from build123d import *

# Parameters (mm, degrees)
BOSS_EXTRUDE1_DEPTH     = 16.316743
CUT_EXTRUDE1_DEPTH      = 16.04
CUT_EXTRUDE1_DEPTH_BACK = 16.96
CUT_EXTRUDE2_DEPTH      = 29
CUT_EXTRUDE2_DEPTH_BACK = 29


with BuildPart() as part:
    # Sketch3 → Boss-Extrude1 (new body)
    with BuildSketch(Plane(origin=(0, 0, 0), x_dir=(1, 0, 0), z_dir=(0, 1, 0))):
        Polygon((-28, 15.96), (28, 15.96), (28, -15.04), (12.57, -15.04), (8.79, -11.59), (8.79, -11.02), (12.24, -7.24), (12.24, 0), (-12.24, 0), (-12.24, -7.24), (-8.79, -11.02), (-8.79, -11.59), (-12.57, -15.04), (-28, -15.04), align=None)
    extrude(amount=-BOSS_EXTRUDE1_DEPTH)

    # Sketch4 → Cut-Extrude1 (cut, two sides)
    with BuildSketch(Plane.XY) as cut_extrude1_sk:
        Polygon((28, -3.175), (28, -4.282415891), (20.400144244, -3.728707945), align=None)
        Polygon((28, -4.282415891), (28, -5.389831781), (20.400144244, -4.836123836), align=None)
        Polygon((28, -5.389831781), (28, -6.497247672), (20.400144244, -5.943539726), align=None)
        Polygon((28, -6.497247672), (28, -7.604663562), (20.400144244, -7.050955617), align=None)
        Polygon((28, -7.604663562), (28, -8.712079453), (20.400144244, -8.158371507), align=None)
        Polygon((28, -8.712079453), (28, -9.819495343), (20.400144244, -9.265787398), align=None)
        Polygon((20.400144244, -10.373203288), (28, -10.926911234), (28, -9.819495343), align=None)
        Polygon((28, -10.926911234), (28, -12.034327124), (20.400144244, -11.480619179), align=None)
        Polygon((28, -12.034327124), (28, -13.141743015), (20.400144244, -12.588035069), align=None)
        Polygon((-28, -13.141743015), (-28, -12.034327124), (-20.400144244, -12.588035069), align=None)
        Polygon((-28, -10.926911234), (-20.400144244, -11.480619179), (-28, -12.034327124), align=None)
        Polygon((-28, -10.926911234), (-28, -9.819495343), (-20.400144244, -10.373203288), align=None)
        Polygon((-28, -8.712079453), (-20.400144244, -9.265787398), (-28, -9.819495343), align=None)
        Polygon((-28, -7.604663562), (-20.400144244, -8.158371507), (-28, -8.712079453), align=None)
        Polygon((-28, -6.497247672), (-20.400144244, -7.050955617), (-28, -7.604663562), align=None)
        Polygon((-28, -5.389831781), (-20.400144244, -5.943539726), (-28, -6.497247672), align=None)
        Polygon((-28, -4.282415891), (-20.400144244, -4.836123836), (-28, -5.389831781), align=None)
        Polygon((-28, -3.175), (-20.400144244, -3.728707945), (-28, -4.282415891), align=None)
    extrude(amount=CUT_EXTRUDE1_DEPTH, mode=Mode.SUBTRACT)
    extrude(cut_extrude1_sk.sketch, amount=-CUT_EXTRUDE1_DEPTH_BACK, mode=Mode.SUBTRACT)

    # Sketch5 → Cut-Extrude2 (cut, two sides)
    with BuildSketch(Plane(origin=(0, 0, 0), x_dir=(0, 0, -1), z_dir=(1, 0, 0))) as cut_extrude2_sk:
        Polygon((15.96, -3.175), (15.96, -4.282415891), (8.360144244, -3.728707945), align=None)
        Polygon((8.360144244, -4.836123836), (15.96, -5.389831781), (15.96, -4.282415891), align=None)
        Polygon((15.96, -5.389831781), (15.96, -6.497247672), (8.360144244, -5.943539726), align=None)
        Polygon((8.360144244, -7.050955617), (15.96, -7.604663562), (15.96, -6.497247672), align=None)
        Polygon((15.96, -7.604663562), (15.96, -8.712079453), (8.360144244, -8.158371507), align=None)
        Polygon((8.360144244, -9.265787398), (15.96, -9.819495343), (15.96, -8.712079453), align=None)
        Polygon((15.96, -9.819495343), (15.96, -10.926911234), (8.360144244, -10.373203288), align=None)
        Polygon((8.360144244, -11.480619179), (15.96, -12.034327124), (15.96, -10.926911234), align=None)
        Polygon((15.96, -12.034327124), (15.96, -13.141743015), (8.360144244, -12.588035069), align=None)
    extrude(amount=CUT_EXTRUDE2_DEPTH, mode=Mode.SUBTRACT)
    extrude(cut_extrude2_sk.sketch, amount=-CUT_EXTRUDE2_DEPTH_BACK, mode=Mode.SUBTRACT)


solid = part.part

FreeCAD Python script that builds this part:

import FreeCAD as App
import Part
import Sketcher


def add_polygon(sketch, points):
    """Adds a closed chain of lines whose ends are joined by coincident constraints."""
    first, n = sketch.GeometryCount, len(points)
    for a, b in zip(points, points[1:] + points[:1]):
        sketch.addGeometry(Part.LineSegment(App.Vector(*a, 0), App.Vector(*b, 0)), False)
    for i in range(n):
        sketch.addConstraint(Sketcher.Constraint("Coincident", first + i, 2, first + (i + 1) % n, 1))

doc = App.newDocument("Part")
body = doc.addObject("PartDesign::Body", "Body")

# Sketch on XZ plane
sketch1 = body.newObject("Sketcher::SketchObject", "Sketch")
sketch1.AttachmentSupport = (doc.getObject("XZ_Plane"), [""])
sketch1.MapMode = "FlatFace"
add_polygon(sketch1, [(28, -16), (-28, -16), (-28, 15), (-12.6, 15), (-8.8, 11.6), (-8.8, 11), (-12.2, 7.2), (-12.2, 0), (12.2, 0), (12.2, 7.2), (8.8, 11), (8.8, 11.6), (12.6, 15), (28, 15)])  # lines 0-13
sketch1.addConstraint([
    Sketcher.Constraint("Horizontal", 0),
    Sketcher.Constraint("Vertical", 1),
    Sketcher.Constraint("Horizontal", 2),
    Sketcher.Constraint("Vertical", 4),
    Sketcher.Constraint("Vertical", 6),
    Sketcher.Constraint("Horizontal", 7),
    Sketcher.Constraint("Vertical", 8),
    Sketcher.Constraint("Vertical", 10),
    Sketcher.Constraint("Horizontal", 12),
    Sketcher.Constraint("Vertical", 13),
    Sketcher.Constraint("Symmetric", 6, 2, 7, 2, -1, 1),
    Sketcher.Constraint("Symmetric", 4, 2, 9, 2, -2),
    Sketcher.Constraint("Symmetric", 2, 2, 11, 2, -2),
    Sketcher.Constraint("Perpendicular", 3, 5),
    Sketcher.Constraint("Perpendicular", 9, 11),
    Sketcher.Constraint("Horizontal", 5, 2, 8, 2),
    Sketcher.Constraint("Equal", 2, 12),
    Sketcher.Constraint("Equal", 3, 5),
    Sketcher.Constraint("DistanceX", 0, 2, 0, 1, 56.0),
    Sketcher.Constraint("DistanceY", 1, 1, 1, 2, 31.0),
    Sketcher.Constraint("DistanceX", 2, 1, 2, 2, 15.43),
    Sketcher.Constraint("DistanceX", 7, 1, 7, 2, 24.48),
    Sketcher.Constraint("DistanceY", 4, 2, 4, 1, 0.57),
    Sketcher.Constraint("DistanceY", 6, 2, 6, 1, 7.24),
    Sketcher.Constraint("DistanceY", 5, 2, 2, 2, 7.8),
])
pad1 = body.newObject("PartDesign::Pad", "Pad")
pad1.Profile = sketch1
pad1.Length = 16.316743

# Sketch on XY plane
sketch2 = body.newObject("Sketcher::SketchObject", "Sketch001")
sketch2.AttachmentSupport = (doc.getObject("XY_Plane"), [""])
sketch2.MapMode = "FlatFace"
add_polygon(sketch2, [(28, -4.3), (28, -3.2), (20.4, -3.7)])  # lines 0-2
add_polygon(sketch2, [(28, -5.4), (28, -4.3), (20.4, -4.8)])  # lines 3-5
add_polygon(sketch2, [(28, -6.5), (28, -5.4), (20.4, -5.9)])  # lines 6-8
add_polygon(sketch2, [(28, -7.6), (28, -6.5), (20.4, -7.1)])  # lines 9-11
add_polygon(sketch2, [(28, -8.7), (28, -7.6), (20.4, -8.2)])  # lines 12-14
add_polygon(sketch2, [(28, -9.8), (28, -8.7), (20.4, -9.3)])  # lines 15-17
add_polygon(sketch2, [(20.4, -10.4), (28, -10.9), (28, -9.8)])  # lines 18-20
add_polygon(sketch2, [(28, -12), (28, -10.9), (20.4, -11.5)])  # lines 21-23
add_polygon(sketch2, [(28, -13.1), (28, -12), (20.4, -12.6)])  # lines 24-26
add_polygon(sketch2, [(-28, -12), (-28, -13.1), (-20.4, -12.6)])  # lines 27-29
add_polygon(sketch2, [(-20.4, -11.5), (-28, -10.9), (-28, -12)])  # lines 30-32
add_polygon(sketch2, [(-28, -9.8), (-28, -10.9), (-20.4, -10.4)])  # lines 33-35
add_polygon(sketch2, [(-20.4, -9.3), (-28, -8.7), (-28, -9.8)])  # lines 36-38
add_polygon(sketch2, [(-20.4, -8.2), (-28, -7.6), (-28, -8.7)])  # lines 39-41
add_polygon(sketch2, [(-20.4, -7.1), (-28, -6.5), (-28, -7.6)])  # lines 42-44
add_polygon(sketch2, [(-20.4, -5.9), (-28, -5.4), (-28, -6.5)])  # lines 45-47
add_polygon(sketch2, [(-20.4, -4.8), (-28, -4.3), (-28, -5.4)])  # lines 48-50
add_polygon(sketch2, [(-20.4, -3.7), (-28, -3.2), (-28, -4.3)])  # lines 51-53
sketch2.addConstraint([
    Sketcher.Constraint("Vertical", 0),
    Sketcher.Constraint("Vertical", 3),
    Sketcher.Constraint("Vertical", 6),
    Sketcher.Constraint("Vertical", 9),
    Sketcher.Constraint("Vertical", 12),
    Sketcher.Constraint("Vertical", 15),
    Sketcher.Constraint("Vertical", 19),
    Sketcher.Constraint("Vertical", 21),
    Sketcher.Constraint("Vertical", 24),
    Sketcher.Constraint("Vertical", 27),
    Sketcher.Constraint("Vertical", 31),
    Sketcher.Constraint("Vertical", 33),
    Sketcher.Constraint("Vertical", 37),
    Sketcher.Constraint("Vertical", 40),
    Sketcher.Constraint("Vertical", 43),
    Sketcher.Constraint("Vertical", 46),
    Sketcher.Constraint("Vertical", 49),
    Sketcher.Constraint("Vertical", 52),
    Sketcher.Constraint("Coincident", 3, 2, 2, 2),
    Sketcher.Constraint("Coincident", 6, 2, 5, 2),
    Sketcher.Constraint("Coincident", 9, 2, 8, 2),
    Sketcher.Constraint("Coincident", 12, 2, 11, 2),
    Sketcher.Constraint("Coincident", 15, 2, 14, 2),
    Sketcher.Constraint("Coincident", 19, 2, 17, 2),
    Sketcher.Constraint("Coincident", 21, 2, 18, 2),
    Sketcher.Constraint("Coincident", 24, 2, 23, 2),
    Sketcher.Constraint("Coincident", 31, 2, 29, 2),
    Sketcher.Constraint("Coincident", 33, 2, 30, 2),
    Sketcher.Constraint("Coincident", 37, 2, 35, 2),
    Sketcher.Constraint("Coincident", 40, 2, 36, 2),
    Sketcher.Constraint("Coincident", 43, 2, 39, 2),
    Sketcher.Constraint("Coincident", 46, 2, 42, 2),
    Sketcher.Constraint("Coincident", 49, 2, 45, 2),
    Sketcher.Constraint("Coincident", 52, 2, 48, 2),
    Sketcher.Constraint("Symmetric", 26, 2, 27, 2, -2),
    Sketcher.Constraint("Symmetric", 25, 2, 28, 2, -2),
    Sketcher.Constraint("Symmetric", 22, 2, 32, 2, -2),
    Sketcher.Constraint("Symmetric", 20, 2, 34, 2, -2),
    Sketcher.Constraint("Symmetric", 16, 2, 38, 2, -2),
    Sketcher.Constraint("Symmetric", 13, 2, 41, 2, -2),
    Sketcher.Constraint("Symmetric", 10, 2, 44, 2, -2),
    Sketcher.Constraint("Symmetric", 7, 2, 47, 2, -2),
    Sketcher.Constraint("Symmetric", 4, 2, 50, 2, -2),
    Sketcher.Constraint("Symmetric", 1, 2, 53, 2, -2),
    Sketcher.Constraint("Parallel", 1, 4),
    Sketcher.Constraint("Parallel", 2, 5),
    Sketcher.Constraint("Parallel", 4, 7),
    Sketcher.Constraint("Parallel", 5, 8),
    Sketcher.Constraint("Parallel", 7, 10),
    Sketcher.Constraint("Parallel", 8, 11),
    Sketcher.Constraint("Parallel", 10, 13),
    Sketcher.Constraint("Parallel", 11, 14),
    Sketcher.Constraint("Parallel", 13, 16),
    Sketcher.Constraint("Parallel", 14, 17),
    Sketcher.Constraint("Parallel", 17, 18),
    Sketcher.Constraint("Parallel", 16, 20),
    Sketcher.Constraint("Parallel", 20, 22),
    Sketcher.Constraint("Parallel", 18, 23),
    Sketcher.Constraint("Parallel", 22, 25),
    Sketcher.Constraint("Parallel", 23, 26),
    Sketcher.Constraint("Parallel", 25, 28),
    Sketcher.Constraint("Parallel", 26, 29),
    Sketcher.Constraint("Parallel", 29, 30),
    Sketcher.Constraint("Parallel", 30, 35),
    Sketcher.Constraint("Parallel", 35, 36),
    Sketcher.Constraint("Parallel", 36, 39),
    Sketcher.Constraint("Parallel", 39, 42),
    Sketcher.Constraint("Parallel", 42, 45),
    Sketcher.Constraint("Parallel", 45, 48),
    Sketcher.Constraint("Parallel", 48, 51),
    Sketcher.Constraint("Vertical", 1, 2, 4, 2),
    Sketcher.Constraint("Vertical", 4, 2, 7, 2),
    Sketcher.Constraint("Vertical", 7, 2, 10, 2),
    Sketcher.Constraint("Vertical", 10, 2, 13, 2),
    Sketcher.Constraint("Vertical", 13, 2, 16, 2),
    Sketcher.Constraint("Vertical", 16, 2, 20, 2),
    Sketcher.Constraint("Vertical", 20, 2, 22, 2),
    Sketcher.Constraint("Vertical", 22, 2, 25, 2),
    Sketcher.Constraint("DistanceX", -1, 1, 0, 2, 28.0),
    Sketcher.Constraint("Distance", 1, 7.62),
    Sketcher.Constraint("DistanceY", 0, 2, -1, 1, 3.175),
    Sketcher.Constraint("DistanceY", 0, 1, 0, 2, 1.107416),
])
pocket1 = body.newObject("PartDesign::Pocket", "Pocket")
pocket1.Profile = sketch2
pocket1.Type = "ThroughAll"
pocket1.Midplane = True

# Sketch on YZ plane
sketch3 = body.newObject("Sketcher::SketchObject", "Sketch002")
sketch3.AttachmentSupport = (doc.getObject("YZ_Plane"), [""])
sketch3.MapMode = "FlatFace"
add_polygon(sketch3, [(-4.3, -16), (-3.2, -16), (-3.7, -8.4)])  # lines 0-2
add_polygon(sketch3, [(-4.8, -8.4), (-5.4, -16), (-4.3, -16)])  # lines 3-5
add_polygon(sketch3, [(-6.5, -16), (-5.4, -16), (-5.9, -8.4)])  # lines 6-8
add_polygon(sketch3, [(-7.1, -8.4), (-7.6, -16), (-6.5, -16)])  # lines 9-11
add_polygon(sketch3, [(-8.7, -16), (-7.6, -16), (-8.2, -8.4)])  # lines 12-14
add_polygon(sketch3, [(-9.3, -8.4), (-9.8, -16), (-8.7, -16)])  # lines 15-17
add_polygon(sketch3, [(-10.9, -16), (-9.8, -16), (-10.4, -8.4)])  # lines 18-20
add_polygon(sketch3, [(-11.5, -8.4), (-12, -16), (-10.9, -16)])  # lines 21-23
add_polygon(sketch3, [(-13.1, -16), (-12, -16), (-12.6, -8.4)])  # lines 24-26
sketch3.addConstraint([
    Sketcher.Constraint("Horizontal", 0),
    Sketcher.Constraint("Horizontal", 4),
    Sketcher.Constraint("Horizontal", 6),
    Sketcher.Constraint("Horizontal", 10),
    Sketcher.Constraint("Horizontal", 12),
    Sketcher.Constraint("Horizontal", 16),
    Sketcher.Constraint("Horizontal", 18),
    Sketcher.Constraint("Horizontal", 22),
    Sketcher.Constraint("Horizontal", 24),
    Sketcher.Constraint("Coincident", 4, 2, 2, 2),
    Sketcher.Constraint("Coincident", 6, 2, 3, 2),
    Sketcher.Constraint("Coincident", 10, 2, 8, 2),
    Sketcher.Constraint("Coincident", 12, 2, 9, 2),
    Sketcher.Constraint("Coincident", 16, 2, 14, 2),
    Sketcher.Constraint("Coincident", 18, 2, 15, 2),
    Sketcher.Constraint("Coincident", 22, 2, 20, 2),
    Sketcher.Constraint("Coincident", 24, 2, 21, 2),
    Sketcher.Constraint("Parallel", 2, 3),
    Sketcher.Constraint("Parallel", 1, 5),
    Sketcher.Constraint("Parallel", 5, 7),
    Sketcher.Constraint("Parallel", 3, 8),
    Sketcher.Constraint("Parallel", 8, 9),
    Sketcher.Constraint("Parallel", 7, 11),
    Sketcher.Constraint("Parallel", 11, 13),
    Sketcher.Constraint("Parallel", 9, 14),
    Sketcher.Constraint("Parallel", 14, 15),
    Sketcher.Constraint("Parallel", 13, 17),
    Sketcher.Constraint("Parallel", 17, 19),
    Sketcher.Constraint("Parallel", 15, 20),
    Sketcher.Constraint("Parallel", 20, 21),
    Sketcher.Constraint("Parallel", 19, 23),
    Sketcher.Constraint("Parallel", 23, 25),
    Sketcher.Constraint("Parallel", 21, 26),
    Sketcher.Constraint("Horizontal", 1, 2, 5, 2),
    Sketcher.Constraint("Horizontal", 5, 2, 7, 2),
    Sketcher.Constraint("Horizontal", 7, 2, 11, 2),
    Sketcher.Constraint("Horizontal", 11, 2, 13, 2),
    Sketcher.Constraint("Horizontal", 13, 2, 17, 2),
    Sketcher.Constraint("Horizontal", 17, 2, 19, 2),
    Sketcher.Constraint("Horizontal", 19, 2, 23, 2),
    Sketcher.Constraint("Horizontal", 23, 2, 25, 2),
    Sketcher.Constraint("Equal", 1, 2),
    Sketcher.Constraint("Distance", 1, 7.62),
    Sketcher.Constraint("DistanceY", 0, 2, -1, 1, 15.96),
    Sketcher.Constraint("DistanceX", 0, 2, -1, 1, 3.175),
    Sketcher.Constraint("DistanceX", 0, 1, 0, 2, 1.107416),
])
pocket2 = body.newObject("PartDesign::Pocket", "Pocket001")
pocket2.Profile = sketch3
pocket2.Type = "ThroughAll"
pocket2.Midplane = True

doc.recompute()
